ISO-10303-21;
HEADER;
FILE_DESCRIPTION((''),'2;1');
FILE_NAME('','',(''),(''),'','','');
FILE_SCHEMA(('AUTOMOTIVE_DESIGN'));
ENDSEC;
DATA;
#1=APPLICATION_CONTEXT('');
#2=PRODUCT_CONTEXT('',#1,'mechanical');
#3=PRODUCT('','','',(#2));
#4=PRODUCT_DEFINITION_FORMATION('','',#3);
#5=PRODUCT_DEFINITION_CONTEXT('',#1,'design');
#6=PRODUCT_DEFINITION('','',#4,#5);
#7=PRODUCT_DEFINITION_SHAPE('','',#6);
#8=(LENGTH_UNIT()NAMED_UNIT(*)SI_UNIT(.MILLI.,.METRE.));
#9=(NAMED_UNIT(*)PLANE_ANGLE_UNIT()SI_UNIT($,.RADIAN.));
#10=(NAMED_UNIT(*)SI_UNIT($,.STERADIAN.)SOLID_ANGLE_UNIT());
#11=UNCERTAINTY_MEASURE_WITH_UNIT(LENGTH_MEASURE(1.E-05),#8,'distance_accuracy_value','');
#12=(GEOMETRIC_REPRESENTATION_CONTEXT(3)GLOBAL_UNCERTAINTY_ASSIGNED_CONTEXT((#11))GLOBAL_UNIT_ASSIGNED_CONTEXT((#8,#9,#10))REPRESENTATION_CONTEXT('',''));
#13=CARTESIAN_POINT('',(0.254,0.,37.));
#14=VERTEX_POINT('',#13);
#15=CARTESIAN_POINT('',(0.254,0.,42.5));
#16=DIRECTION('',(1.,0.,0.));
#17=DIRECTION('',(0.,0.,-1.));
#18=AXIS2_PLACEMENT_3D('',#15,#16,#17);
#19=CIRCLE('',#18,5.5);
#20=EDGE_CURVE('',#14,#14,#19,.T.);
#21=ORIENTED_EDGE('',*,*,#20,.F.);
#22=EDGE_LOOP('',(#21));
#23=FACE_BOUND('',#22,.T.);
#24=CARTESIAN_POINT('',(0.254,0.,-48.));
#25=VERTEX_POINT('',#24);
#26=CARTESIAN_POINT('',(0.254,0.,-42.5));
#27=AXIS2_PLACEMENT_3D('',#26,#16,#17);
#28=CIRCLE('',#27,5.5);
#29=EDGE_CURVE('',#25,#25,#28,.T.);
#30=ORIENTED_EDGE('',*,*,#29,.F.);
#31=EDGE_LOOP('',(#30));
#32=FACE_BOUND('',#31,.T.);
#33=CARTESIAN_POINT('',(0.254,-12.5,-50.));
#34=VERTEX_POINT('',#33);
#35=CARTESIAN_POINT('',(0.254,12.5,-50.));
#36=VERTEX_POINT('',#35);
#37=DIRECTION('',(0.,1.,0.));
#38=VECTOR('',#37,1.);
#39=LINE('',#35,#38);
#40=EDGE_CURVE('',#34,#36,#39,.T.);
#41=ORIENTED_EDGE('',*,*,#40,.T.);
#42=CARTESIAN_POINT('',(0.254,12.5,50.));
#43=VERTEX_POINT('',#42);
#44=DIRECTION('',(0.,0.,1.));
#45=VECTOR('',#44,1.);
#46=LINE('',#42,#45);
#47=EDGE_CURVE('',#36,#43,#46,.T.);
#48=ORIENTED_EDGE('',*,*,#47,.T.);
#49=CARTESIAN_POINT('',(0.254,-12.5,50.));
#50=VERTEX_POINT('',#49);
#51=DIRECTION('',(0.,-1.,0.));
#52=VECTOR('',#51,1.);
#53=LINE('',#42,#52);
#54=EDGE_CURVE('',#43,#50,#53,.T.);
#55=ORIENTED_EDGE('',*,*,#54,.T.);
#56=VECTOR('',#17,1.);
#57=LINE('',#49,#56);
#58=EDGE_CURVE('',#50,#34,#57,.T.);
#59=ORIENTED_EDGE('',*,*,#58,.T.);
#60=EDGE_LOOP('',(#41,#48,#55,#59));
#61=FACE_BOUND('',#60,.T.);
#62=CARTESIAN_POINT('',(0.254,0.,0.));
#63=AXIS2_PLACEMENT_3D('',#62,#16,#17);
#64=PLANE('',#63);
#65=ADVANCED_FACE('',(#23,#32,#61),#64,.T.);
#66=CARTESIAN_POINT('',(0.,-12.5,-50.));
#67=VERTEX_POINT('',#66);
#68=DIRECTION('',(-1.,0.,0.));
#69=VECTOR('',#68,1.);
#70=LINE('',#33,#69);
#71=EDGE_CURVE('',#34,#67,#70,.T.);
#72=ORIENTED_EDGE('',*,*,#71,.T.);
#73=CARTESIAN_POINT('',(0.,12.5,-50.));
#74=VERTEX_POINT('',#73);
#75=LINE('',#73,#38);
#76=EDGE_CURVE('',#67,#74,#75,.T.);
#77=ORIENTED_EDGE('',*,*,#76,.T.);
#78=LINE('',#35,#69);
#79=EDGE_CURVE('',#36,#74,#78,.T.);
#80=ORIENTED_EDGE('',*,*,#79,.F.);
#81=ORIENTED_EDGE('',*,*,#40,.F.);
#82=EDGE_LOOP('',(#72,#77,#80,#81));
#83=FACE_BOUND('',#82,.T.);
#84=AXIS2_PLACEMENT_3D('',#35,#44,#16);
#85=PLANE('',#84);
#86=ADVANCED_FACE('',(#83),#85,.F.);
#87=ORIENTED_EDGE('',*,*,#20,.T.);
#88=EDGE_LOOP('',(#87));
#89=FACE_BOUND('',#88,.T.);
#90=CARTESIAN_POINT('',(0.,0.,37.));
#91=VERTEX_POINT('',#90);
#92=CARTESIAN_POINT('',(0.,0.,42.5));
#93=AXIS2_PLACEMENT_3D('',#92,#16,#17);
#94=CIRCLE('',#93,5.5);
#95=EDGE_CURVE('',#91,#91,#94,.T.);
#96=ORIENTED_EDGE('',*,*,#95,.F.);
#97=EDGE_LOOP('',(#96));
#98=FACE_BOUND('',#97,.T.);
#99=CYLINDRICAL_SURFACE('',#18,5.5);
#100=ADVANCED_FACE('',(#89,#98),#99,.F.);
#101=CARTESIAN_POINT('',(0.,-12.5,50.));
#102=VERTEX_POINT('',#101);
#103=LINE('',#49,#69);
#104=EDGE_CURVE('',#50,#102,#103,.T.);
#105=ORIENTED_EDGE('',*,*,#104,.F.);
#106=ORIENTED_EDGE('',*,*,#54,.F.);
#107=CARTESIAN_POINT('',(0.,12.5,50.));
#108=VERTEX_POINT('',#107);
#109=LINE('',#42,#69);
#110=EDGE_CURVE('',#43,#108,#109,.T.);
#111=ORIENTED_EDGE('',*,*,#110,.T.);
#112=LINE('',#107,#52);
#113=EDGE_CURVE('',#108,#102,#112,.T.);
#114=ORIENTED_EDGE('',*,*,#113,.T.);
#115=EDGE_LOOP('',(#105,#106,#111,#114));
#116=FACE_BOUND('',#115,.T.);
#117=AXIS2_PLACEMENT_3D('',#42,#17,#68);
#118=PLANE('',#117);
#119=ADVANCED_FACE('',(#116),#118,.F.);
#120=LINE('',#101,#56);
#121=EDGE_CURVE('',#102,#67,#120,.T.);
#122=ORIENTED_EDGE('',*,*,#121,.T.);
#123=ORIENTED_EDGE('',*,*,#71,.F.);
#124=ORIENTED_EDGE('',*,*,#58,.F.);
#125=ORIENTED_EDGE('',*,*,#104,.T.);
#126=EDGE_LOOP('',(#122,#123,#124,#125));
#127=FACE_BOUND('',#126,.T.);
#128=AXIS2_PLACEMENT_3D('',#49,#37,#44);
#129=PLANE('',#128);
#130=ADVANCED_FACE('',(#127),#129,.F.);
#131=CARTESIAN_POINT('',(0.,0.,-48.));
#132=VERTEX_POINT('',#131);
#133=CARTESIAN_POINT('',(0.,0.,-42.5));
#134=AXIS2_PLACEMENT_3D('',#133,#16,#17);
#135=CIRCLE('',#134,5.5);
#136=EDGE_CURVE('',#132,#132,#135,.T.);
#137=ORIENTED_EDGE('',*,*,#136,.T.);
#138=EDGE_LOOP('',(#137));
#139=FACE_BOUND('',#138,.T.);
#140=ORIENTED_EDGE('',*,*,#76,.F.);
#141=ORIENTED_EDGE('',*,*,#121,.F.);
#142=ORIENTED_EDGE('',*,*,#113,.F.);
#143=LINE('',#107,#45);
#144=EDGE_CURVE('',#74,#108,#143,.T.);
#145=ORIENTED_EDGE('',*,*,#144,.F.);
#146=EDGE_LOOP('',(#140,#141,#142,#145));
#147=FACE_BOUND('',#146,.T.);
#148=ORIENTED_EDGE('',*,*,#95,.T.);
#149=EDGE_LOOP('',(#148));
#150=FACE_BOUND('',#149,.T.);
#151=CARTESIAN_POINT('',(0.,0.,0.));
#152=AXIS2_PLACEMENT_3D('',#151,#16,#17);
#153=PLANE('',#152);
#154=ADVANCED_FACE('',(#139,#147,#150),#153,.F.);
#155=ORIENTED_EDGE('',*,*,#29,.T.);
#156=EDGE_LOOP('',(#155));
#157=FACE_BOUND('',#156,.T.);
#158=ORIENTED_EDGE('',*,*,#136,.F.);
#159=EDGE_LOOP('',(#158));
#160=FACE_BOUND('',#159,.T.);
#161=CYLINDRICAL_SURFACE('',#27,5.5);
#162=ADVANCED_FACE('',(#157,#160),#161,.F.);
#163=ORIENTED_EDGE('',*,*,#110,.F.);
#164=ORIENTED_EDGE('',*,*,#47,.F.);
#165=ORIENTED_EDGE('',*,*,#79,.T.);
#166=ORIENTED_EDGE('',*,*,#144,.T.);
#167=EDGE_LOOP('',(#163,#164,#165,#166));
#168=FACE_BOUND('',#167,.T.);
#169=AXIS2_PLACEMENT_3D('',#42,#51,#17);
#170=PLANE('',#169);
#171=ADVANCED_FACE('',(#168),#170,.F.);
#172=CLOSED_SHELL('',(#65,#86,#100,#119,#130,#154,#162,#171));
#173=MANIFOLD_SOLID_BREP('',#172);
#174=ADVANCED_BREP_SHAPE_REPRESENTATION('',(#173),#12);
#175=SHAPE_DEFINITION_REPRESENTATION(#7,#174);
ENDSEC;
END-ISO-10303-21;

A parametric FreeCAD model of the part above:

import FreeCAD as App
import Part
import Sketcher
Q = App.Units.Quantity

doc = App.newDocument("Part")
body = doc.addObject("PartDesign::Body", "Body")

# Sketch on YZ plane
sketch1 = body.newObject("Sketcher::SketchObject", "Sketch")
sketch1.AttachmentSupport = (doc.getObject("YZ_Plane"), [""])
sketch1.MapMode = "FlatFace"
sketch1.addGeometry([
    Part.LineSegment(App.Vector(12, 50, 0), App.Vector(-12, 50, 0)),
    Part.LineSegment(App.Vector(-12, 50, 0), App.Vector(-12, -50, 0)),
    Part.LineSegment(App.Vector(-12, -50, 0), App.Vector(12, -50, 0)),
    Part.LineSegment(App.Vector(12, -50, 0), App.Vector(12, 50, 0)),
], False)
sketch1.addConstraint([
    Sketcher.Constraint("Coincident", 0, 2, 1, 1),
    Sketcher.Constraint("Coincident", 1, 2, 2, 1),
    Sketcher.Constraint("Coincident", 2, 2, 3, 1),
    Sketcher.Constraint("Coincident", 3, 2, 0, 1),
    Sketcher.Constraint("Horizontal", 0),
    Sketcher.Constraint("Vertical", 1),
    Sketcher.Constraint("Horizontal", 2),
    Sketcher.Constraint("Vertical", 3),
    Sketcher.Constraint("Symmetric", 0, 2, 2, 2, -1, 1),
    Sketcher.Constraint("DistanceX", 0, 2, 0, 1, Q("25 mm")),
    Sketcher.Constraint("DistanceY", 1, 2, 1, 1, Q("100 mm")),
])
pad1 = body.newObject("PartDesign::Pad", "Pad")
pad1.Profile = sketch1
pad1.Length = 0.254

# Sketch on YZ plane
sketch2 = body.newObject("Sketcher::SketchObject", "Sketch001")
sketch2.AttachmentSupport = (doc.getObject("YZ_Plane"), [""])
sketch2.MapMode = "FlatFace"
sketch2.AttachmentOffset = App.Placement(App.Vector(0, 0, 0.254), App.Rotation())
sketch2.addGeometry([
    Part.Circle(App.Vector(0, 42, 0), App.Vector(0, 0, 1), 6),
    Part.Circle(App.Vector(0, -42, 0), App.Vector(0, 0, 1), 6),
], False)
sketch2.addConstraint([
    Sketcher.Constraint("Equal", 0, 1),
    Sketcher.Constraint("Symmetric", 0, 3, 1, 3, -1, 1),
    Sketcher.Constraint("PointOnObject", 0, 3, -2),
    Sketcher.Constraint("Diameter", 0, Q("11 mm")),
    Sketcher.Constraint("DistanceY", 1, 3, 0, 3, Q("85 mm")),
])
doc.recompute()
hole = body.newObject("PartDesign::Hole", "Hole")
hole.Profile = sketch2
hole.ThreadType = "None"
hole.Diameter = 11
hole.DepthType = "ThroughAll"

doc.recompute()
